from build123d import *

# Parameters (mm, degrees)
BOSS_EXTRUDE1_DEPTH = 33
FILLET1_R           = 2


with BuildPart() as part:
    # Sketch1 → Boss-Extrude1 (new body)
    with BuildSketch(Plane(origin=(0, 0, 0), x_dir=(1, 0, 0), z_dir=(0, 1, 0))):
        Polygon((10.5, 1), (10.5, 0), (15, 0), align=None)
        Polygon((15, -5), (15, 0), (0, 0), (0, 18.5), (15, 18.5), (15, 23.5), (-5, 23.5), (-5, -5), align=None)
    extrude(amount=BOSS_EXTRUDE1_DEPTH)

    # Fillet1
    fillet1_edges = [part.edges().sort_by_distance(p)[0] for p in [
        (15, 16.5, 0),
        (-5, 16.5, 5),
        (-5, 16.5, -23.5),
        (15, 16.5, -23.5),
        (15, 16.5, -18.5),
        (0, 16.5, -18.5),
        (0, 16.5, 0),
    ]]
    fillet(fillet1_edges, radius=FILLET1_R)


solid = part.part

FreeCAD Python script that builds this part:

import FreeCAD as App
import Part
import Sketcher
Q = App.Units.Quantity


def edges_at(feature, points):
    """Names of the edges that pass closest to the given points."""
    edges = feature.Shape.Edges
    near = lambda p: min(range(len(edges)), key=lambda i: edges[i].distToShape(Part.Vertex(*p))[0])
    return sorted({f"Edge{near(p) + 1}" for p in points})

doc = App.newDocument("Part")
body = doc.addObject("PartDesign::Body", "Body")

# Sketch on XZ plane
sketch1 = doc.addObject("Sketcher::SketchObject", "Sketch")
body.addObject(sketch1)
sketch1.AttachmentSupport = (doc.XZ_Plane, [""])
sketch1.MapMode = "FlatFace"
sketch1.addGeometry(Part.LineSegment(App.Vector(10.5, -1, 0), App.Vector(10.5, 0, 0)), False)
sketch1.addGeometry(Part.LineSegment(App.Vector(10.5, 0, 0), App.Vector(0, 0, 0)), False)
sketch1.addGeometry(Part.LineSegment(App.Vector(0, 0, 0), App.Vector(0, -18.5, 0)), False)
sketch1.addGeometry(Part.LineSegment(App.Vector(0, -18.5, 0), App.Vector(15, -18.5, 0)), False)
sketch1.addGeometry(Part.LineSegment(App.Vector(15, -18.5, 0), App.Vector(15, -23.5, 0)), False)
sketch1.addGeometry(Part.LineSegment(App.Vector(15, -23.5, 0), App.Vector(-5, -23.5, 0)), False)
sketch1.addGeometry(Part.LineSegment(App.Vector(-5, -23.5, 0), App.Vector(-5, 5, 0)), False)
sketch1.addGeometry(Part.LineSegment(App.Vector(-5, 5, 0), App.Vector(15, 5, 0)), False)
sketch1.addGeometry(Part.LineSegment(App.Vector(15, 5, 0), App.Vector(15, 0, 0)), False)
sketch1.addGeometry(Part.LineSegment(App.Vector(15, 0, 0), App.Vector(10.5, -1, 0)), False)
sketch1.addConstraint(Sketcher.Constraint("Coincident", 0, 2, 1, 1))
sketch1.addConstraint(Sketcher.Constraint("Coincident", 1, 2, 2, 1))
sketch1.addConstraint(Sketcher.Constraint("Coincident", 2, 2, 3, 1))
sketch1.addConstraint(Sketcher.Constraint("Coincident", 3, 2, 4, 1))
sketch1.addConstraint(Sketcher.Constraint("Coincident", 4, 2, 5, 1))
sketch1.addConstraint(Sketcher.Constraint("Coincident", 5, 2, 6, 1))
sketch1.addConstraint(Sketcher.Constraint("Coincident", 6, 2, 7, 1))
sketch1.addConstraint(Sketcher.Constraint("Coincident", 7, 2, 8, 1))
sketch1.addConstraint(Sketcher.Constraint("Coincident", 8, 2, 9, 1))
sketch1.addConstraint(Sketcher.Constraint("Coincident", 9, 2, 0, 1))
sketch1.addConstraint(Sketcher.Constraint("Vertical", 0))
sketch1.addConstraint(Sketcher.Constraint("Horizontal", 1))
sketch1.addConstraint(Sketcher.Constraint("Vertical", 2))
sketch1.addConstraint(Sketcher.Constraint("Horizontal", 3))
sketch1.addConstraint(Sketcher.Constraint("Vertical", 4))
sketch1.addConstraint(Sketcher.Constraint("Horizontal", 5))
sketch1.addConstraint(Sketcher.Constraint("Vertical", 6))
sketch1.addConstraint(Sketcher.Constraint("Horizontal", 7))
sketch1.addConstraint(Sketcher.Constraint("Vertical", 8))
sketch1.addConstraint(Sketcher.Constraint("Coincident", 1, 2, -1, 1))
sketch1.addConstraint(Sketcher.Constraint("PointOnObject", 8, 2, -1))
sketch1.addConstraint(Sketcher.Constraint("Vertical", 4, 2, 7, 2))
sketch1.addConstraint(Sketcher.Constraint("Equal", 4, 8))
sketch1.addConstraint(Sketcher.Constraint("DistanceX", 3, 1, 3, 2, Q("15 mm")))
sketch1.addConstraint(Sketcher.Constraint("DistanceX", 5, 2, 5, 1, Q("20 mm")))
sketch1.addConstraint(Sketcher.Constraint("DistanceY", 0, 1, 0, 2, Q("1 mm")))
sketch1.addConstraint(Sketcher.Constraint("DistanceY", 4, 2, 4, 1, Q("5 mm")))
sketch1.addConstraint(Sketcher.Constraint("DistanceX", 1, 2, 1, 1, Q("10.5 mm")))
sketch1.addConstraint(Sketcher.Constraint("DistanceY", 2, 2, 2, 1, Q("18.5 mm")))
pad1 = doc.addObject("PartDesign::Pad", "Pad")
body.addObject(pad1)
pad1.Profile = sketch1
pad1.Length = 33
pad1.Reversed = True
doc.recompute()

fillet = doc.addObject("PartDesign::Fillet", "Fillet")
body.addObject(fillet)
fillet.Base = (pad1, edges_at(pad1, [
    (15, 16.5, 0),
    (-5, 16.5, 5),
    (-5, 16.5, -23.5),
    (15, 16.5, -23.5),
    (15, 16.5, -18.5),
    (0, 16.5, -18.5),
    (0, 16.5, 0),
]))
fillet.Radius = 2

doc.recompute()
